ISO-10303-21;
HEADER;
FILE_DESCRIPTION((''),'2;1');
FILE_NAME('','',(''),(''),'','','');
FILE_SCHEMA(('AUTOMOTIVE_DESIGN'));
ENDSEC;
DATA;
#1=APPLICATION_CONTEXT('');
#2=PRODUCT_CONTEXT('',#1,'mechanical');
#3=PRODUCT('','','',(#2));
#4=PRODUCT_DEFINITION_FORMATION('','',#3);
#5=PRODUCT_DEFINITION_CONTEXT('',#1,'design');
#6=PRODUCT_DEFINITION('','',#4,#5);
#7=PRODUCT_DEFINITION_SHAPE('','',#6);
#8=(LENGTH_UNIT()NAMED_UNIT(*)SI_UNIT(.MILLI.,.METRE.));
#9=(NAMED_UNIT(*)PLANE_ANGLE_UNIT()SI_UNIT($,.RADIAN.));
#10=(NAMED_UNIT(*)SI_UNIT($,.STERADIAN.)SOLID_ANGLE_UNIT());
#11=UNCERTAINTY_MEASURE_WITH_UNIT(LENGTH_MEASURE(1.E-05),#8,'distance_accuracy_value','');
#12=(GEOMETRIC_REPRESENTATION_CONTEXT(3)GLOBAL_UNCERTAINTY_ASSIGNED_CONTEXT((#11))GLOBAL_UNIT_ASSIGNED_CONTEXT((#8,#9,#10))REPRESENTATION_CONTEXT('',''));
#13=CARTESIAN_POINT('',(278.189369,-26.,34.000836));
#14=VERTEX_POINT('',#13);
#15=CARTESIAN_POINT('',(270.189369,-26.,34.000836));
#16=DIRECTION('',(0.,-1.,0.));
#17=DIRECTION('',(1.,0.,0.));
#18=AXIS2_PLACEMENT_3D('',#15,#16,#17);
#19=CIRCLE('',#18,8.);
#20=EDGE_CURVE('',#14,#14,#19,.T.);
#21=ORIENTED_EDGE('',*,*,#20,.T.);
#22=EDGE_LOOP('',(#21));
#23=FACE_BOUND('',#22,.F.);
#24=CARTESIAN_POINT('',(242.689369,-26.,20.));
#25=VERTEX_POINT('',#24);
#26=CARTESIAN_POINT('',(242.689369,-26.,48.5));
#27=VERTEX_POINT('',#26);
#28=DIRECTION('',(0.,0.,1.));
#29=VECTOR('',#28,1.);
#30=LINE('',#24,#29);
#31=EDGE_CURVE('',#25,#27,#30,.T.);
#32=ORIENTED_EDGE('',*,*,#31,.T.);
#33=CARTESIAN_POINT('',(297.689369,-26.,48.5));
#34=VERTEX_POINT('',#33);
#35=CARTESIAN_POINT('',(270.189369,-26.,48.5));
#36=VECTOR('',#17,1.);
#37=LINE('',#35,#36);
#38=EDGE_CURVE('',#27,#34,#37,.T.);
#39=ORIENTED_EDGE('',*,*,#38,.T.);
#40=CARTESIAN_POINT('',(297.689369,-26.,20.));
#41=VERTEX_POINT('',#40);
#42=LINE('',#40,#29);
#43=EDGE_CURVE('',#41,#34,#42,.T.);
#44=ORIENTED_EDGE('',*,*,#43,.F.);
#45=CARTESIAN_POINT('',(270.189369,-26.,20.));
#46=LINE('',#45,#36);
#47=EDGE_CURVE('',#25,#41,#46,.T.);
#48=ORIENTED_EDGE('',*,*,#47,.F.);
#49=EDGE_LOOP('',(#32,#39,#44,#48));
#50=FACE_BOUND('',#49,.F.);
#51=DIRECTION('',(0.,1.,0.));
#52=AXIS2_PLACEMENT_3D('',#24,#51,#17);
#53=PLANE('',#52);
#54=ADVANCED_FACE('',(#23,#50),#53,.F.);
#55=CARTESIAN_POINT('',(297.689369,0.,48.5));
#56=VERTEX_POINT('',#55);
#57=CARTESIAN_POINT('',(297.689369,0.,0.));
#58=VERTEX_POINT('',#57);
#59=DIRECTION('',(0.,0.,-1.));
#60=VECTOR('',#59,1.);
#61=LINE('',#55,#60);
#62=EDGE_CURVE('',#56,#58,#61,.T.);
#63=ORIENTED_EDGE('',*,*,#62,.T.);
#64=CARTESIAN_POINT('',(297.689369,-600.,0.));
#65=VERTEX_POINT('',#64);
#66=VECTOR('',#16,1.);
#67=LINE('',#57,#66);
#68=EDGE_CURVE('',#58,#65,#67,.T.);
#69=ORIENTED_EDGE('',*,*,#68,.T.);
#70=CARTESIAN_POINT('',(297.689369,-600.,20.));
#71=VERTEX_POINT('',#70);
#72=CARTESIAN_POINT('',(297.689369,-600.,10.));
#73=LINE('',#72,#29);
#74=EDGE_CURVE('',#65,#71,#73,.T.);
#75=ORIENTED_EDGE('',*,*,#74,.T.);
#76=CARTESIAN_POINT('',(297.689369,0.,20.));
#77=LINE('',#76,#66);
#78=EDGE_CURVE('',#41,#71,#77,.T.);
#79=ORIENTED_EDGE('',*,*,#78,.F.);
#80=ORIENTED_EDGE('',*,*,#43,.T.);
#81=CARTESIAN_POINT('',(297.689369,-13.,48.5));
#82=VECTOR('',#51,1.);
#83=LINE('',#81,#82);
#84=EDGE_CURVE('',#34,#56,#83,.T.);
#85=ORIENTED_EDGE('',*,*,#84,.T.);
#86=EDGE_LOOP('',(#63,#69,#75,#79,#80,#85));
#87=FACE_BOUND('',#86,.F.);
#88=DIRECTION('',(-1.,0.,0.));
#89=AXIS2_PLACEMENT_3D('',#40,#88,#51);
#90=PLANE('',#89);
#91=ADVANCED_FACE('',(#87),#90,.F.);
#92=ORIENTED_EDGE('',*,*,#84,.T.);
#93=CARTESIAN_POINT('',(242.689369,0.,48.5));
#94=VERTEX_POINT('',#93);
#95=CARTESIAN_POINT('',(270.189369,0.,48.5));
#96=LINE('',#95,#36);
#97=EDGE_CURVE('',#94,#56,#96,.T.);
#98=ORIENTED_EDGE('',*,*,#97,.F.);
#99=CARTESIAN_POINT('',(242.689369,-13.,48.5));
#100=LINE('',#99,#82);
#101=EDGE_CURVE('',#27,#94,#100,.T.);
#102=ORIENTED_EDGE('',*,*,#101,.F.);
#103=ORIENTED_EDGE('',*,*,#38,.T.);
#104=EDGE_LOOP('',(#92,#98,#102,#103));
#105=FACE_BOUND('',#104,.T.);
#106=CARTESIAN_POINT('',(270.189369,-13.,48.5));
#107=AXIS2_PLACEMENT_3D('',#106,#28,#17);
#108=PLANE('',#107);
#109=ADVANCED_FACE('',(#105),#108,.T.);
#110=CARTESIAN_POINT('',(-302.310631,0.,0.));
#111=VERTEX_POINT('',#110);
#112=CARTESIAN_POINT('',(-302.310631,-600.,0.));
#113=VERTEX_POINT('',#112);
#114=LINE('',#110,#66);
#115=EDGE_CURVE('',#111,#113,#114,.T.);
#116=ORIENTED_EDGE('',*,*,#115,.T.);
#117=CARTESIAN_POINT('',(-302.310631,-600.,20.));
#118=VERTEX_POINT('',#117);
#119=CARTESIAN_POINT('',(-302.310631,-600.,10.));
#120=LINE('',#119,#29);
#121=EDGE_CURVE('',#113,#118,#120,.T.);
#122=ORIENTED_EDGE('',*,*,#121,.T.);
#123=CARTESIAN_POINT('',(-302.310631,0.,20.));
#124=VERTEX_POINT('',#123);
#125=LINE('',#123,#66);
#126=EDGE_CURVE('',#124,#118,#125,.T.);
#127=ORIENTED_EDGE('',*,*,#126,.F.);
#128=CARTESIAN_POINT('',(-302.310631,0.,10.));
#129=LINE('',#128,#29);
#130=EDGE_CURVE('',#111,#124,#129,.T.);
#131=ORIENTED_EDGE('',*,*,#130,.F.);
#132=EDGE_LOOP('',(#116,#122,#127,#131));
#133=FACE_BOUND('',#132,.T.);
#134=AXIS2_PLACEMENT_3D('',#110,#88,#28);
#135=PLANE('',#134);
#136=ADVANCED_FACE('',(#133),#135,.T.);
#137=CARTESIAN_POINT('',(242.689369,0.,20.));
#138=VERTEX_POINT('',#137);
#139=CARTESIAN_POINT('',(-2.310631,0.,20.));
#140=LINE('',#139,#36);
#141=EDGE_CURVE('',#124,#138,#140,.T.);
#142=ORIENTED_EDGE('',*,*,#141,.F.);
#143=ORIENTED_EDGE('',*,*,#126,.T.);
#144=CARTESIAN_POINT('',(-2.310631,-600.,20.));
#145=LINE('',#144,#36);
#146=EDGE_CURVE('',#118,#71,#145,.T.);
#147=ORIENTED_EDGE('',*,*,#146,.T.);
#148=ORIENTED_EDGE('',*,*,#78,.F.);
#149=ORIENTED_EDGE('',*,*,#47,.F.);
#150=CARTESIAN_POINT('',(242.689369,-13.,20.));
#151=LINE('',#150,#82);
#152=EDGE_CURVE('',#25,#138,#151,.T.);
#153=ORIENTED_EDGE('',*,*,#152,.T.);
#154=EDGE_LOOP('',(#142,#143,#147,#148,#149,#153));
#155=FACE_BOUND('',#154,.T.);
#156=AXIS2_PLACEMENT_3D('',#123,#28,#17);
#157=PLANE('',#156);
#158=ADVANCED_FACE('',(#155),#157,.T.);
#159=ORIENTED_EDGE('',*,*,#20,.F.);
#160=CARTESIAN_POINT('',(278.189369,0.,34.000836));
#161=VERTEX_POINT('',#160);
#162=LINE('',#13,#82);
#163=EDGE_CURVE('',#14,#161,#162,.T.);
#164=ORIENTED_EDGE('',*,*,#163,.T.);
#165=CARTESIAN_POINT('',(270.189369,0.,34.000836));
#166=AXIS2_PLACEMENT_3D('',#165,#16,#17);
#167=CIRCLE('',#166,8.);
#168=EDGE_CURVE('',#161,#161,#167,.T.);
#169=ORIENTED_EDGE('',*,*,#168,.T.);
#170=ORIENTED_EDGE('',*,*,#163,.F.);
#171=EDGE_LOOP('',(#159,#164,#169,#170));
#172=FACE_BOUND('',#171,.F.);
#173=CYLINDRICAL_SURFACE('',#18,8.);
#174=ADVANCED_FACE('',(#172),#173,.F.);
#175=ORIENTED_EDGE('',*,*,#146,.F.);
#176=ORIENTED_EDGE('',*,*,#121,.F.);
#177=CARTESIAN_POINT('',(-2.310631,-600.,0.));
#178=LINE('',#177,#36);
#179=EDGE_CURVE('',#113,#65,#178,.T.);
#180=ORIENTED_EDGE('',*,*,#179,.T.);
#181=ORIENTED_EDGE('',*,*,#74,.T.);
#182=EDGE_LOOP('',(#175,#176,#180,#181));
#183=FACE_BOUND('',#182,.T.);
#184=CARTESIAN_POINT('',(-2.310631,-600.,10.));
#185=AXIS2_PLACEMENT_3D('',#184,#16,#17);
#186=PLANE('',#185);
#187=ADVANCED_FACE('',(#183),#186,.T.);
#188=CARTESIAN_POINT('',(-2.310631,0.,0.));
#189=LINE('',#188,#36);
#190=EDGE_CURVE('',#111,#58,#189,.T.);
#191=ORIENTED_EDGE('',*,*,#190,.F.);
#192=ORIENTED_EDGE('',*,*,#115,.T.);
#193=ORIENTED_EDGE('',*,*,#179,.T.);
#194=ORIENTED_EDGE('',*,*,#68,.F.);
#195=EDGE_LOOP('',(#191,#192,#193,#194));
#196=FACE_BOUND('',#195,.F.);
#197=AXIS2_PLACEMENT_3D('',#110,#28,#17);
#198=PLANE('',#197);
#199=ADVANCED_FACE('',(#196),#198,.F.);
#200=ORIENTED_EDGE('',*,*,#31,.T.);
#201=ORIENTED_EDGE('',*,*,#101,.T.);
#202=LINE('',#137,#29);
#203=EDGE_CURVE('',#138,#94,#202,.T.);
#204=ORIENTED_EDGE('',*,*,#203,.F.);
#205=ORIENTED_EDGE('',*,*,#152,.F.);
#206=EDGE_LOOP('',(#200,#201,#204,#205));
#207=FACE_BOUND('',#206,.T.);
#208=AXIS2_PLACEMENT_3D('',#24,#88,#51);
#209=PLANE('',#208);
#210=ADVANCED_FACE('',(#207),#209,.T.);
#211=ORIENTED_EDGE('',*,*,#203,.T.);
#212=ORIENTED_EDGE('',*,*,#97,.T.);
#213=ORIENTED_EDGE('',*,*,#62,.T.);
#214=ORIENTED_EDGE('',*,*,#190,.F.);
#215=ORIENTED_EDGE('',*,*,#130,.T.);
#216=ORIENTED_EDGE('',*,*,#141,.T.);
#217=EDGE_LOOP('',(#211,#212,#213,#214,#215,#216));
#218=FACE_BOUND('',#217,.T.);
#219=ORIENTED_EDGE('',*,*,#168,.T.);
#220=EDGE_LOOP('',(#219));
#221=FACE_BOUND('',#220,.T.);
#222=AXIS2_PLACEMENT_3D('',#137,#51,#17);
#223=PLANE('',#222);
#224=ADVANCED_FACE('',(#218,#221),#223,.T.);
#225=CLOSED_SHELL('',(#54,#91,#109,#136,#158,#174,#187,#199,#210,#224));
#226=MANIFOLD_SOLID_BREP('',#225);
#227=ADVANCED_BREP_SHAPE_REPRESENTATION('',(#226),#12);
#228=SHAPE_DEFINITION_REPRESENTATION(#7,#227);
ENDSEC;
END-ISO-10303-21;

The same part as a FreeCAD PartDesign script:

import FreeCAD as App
import Part
import Sketcher
Q = App.Units.Quantity

doc = App.newDocument("Part")
body = doc.addObject("PartDesign::Body", "Body")

# Sketch on XZ plane
sketch1 = body.newObject("Sketcher::SketchObject", "Sketch")
sketch1.AttachmentSupport = (doc.getObject("XZ_Plane"), [""])
sketch1.MapMode = "FlatFace"
sketch1.addGeometry([
    Part.LineSegment(App.Vector(-302, 20, 0), App.Vector(-302, 0, 0)),
    Part.LineSegment(App.Vector(-302, 0, 0), App.Vector(298, 0, 0)),
    Part.LineSegment(App.Vector(298, 0, 0), App.Vector(298, 20, 0)),
    Part.LineSegment(App.Vector(298, 20, 0), App.Vector(-302, 20, 0)),
], False)
sketch1.addConstraint([
    Sketcher.Constraint("Coincident", 0, 2, 1, 1),
    Sketcher.Constraint("Coincident", 1, 2, 2, 1),
    Sketcher.Constraint("Coincident", 2, 2, 3, 1),
    Sketcher.Constraint("Coincident", 3, 2, 0, 1),
    Sketcher.Constraint("Vertical", 0),
    Sketcher.Constraint("Horizontal", 1),
    Sketcher.Constraint("Vertical", 2),
    Sketcher.Constraint("Horizontal", 3),
    Sketcher.Constraint("PointOnObject", 0, 2, -1),
    Sketcher.Constraint("DistanceX", 1, 1, 1, 2, Q("600 mm")),
    Sketcher.Constraint("DistanceY", 0, 2, 0, 1, Q("20 mm")),
    Sketcher.Constraint("DistanceX", 0, 2, -1, 1, Q("302.310631 mm")),
])
pad1 = body.newObject("PartDesign::Pad", "Pad")
pad1.Profile = sketch1
pad1.Length = 600

# Sketch on XY plane
sketch2 = body.newObject("Sketcher::SketchObject", "Sketch001")
sketch2.AttachmentSupport = (doc.getObject("XY_Plane"), [""])
sketch2.MapMode = "FlatFace"
sketch2.AttachmentOffset = App.Placement(App.Vector(0, 0, 20), App.Rotation())
sketch2.addGeometry([
    Part.LineSegment(App.Vector(243, 0, 0), App.Vector(243, -26, 0)),
    Part.LineSegment(App.Vector(243, -26, 0), App.Vector(298, -26, 0)),
    Part.LineSegment(App.Vector(298, -26, 0), App.Vector(298, 0, 0)),
    Part.LineSegment(App.Vector(298, 0, 0), App.Vector(243, 0, 0)),
], False)
sketch2.addConstraint([
    Sketcher.Constraint("Coincident", 0, 2, 1, 1),
    Sketcher.Constraint("Coincident", 1, 2, 2, 1),
    Sketcher.Constraint("Coincident", 2, 2, 3, 1),
    Sketcher.Constraint("Coincident", 3, 2, 0, 1),
    Sketcher.Constraint("Vertical", 0),
    Sketcher.Constraint("Horizontal", 1),
    Sketcher.Constraint("Vertical", 2),
    Sketcher.Constraint("Horizontal", 3),
    Sketcher.Constraint("PointOnObject", 2, 2, -1),
    Sketcher.Constraint("DistanceX", 1, 1, 1, 2, Q("55 mm")),
    Sketcher.Constraint("DistanceY", 0, 2, 0, 1, Q("26 mm")),
    Sketcher.Constraint("DistanceX", -1, 1, 0, 2, Q("242.689369 mm")),
])
pad2 = body.newObject("PartDesign::Pad", "Pad001")
pad2.Profile = sketch2
pad2.Length = 28.5

# Sketch on XZ plane
sketch3 = body.newObject("Sketcher::SketchObject", "Sketch002")
sketch3.AttachmentSupport = (doc.getObject("XZ_Plane"), [""])
sketch3.MapMode = "FlatFace"
sketch3.AttachmentOffset = App.Placement(App.Vector(0, 0, 26), App.Rotation())
sketch3.addGeometry(Part.Circle(App.Vector(270, 34, 0), App.Vector(0, 0, 1), 8), False)
sketch3.addConstraint([
    Sketcher.Constraint("Diameter", 0, Q("16 mm")),
    Sketcher.Constraint("DistanceX", -1, 1, 0, 3, Q("270.189369 mm")),
    Sketcher.Constraint("DistanceY", -1, 1, 0, 3, Q("34.000836 mm")),
])
pocket1 = body.newObject("PartDesign::Pocket", "Pocket")
pocket1.Profile = sketch3
pocket1.Type = "ThroughAll"

doc.recompute()
